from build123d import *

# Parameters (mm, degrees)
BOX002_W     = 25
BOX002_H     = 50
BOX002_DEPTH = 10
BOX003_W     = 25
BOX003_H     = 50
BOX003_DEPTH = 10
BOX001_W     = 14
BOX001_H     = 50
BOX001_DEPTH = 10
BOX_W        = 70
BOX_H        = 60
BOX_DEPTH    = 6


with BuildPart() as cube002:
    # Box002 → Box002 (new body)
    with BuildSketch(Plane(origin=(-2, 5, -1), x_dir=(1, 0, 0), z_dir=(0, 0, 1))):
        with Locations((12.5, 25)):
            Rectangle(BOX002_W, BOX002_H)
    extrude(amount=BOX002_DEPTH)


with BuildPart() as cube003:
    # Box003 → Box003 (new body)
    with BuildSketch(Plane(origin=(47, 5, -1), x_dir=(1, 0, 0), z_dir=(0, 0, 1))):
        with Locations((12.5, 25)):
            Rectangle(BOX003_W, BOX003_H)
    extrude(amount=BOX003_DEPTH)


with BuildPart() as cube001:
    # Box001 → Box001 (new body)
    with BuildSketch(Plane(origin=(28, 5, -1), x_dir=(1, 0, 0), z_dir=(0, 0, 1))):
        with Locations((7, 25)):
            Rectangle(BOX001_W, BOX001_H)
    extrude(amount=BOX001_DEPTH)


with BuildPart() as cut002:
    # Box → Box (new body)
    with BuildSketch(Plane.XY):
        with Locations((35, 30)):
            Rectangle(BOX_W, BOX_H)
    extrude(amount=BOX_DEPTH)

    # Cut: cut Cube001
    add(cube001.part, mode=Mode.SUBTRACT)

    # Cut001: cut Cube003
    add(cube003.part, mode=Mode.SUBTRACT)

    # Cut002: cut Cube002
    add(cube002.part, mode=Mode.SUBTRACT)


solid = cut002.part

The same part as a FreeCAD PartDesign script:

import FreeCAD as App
import Part
import Sketcher
from FreeCAD import Vector

doc = App.newDocument("Part")
body = doc.addObject("PartDesign::Body", "Body")

sketch1 = body.newObject("Sketcher::SketchObject", "Sketch")
sketch1.AttachmentSupport = (doc.getObject("XY_Plane"), [""])
sketch1.MapMode = "FlatFace"
sketch1.AttachmentOffset = App.Placement(Vector(0, 0, -1), App.Rotation())
sketch1.addGeometry(Part.LineSegment(Vector(-2, 55, 0), Vector(-2, 5, 0)), False)
sketch1.addGeometry(Part.LineSegment(Vector(-2, 5, 0), Vector(23, 5, 0)), False)
sketch1.addGeometry(Part.LineSegment(Vector(23, 5, 0), Vector(23, 55, 0)), False)
sketch1.addGeometry(Part.LineSegment(Vector(23, 55, 0), Vector(-2, 55, 0)), False)
sketch1.addConstraint(Sketcher.Constraint("Coincident", 0, 2, 1, 1))
sketch1.addConstraint(Sketcher.Constraint("Coincident", 1, 2, 2, 1))
sketch1.addConstraint(Sketcher.Constraint("Coincident", 2, 2, 3, 1))
sketch1.addConstraint(Sketcher.Constraint("Coincident", 3, 2, 0, 1))
sketch1.addConstraint(Sketcher.Constraint("Vertical", 0))
sketch1.addConstraint(Sketcher.Constraint("Horizontal", 1))
sketch1.addConstraint(Sketcher.Constraint("Vertical", 2))
sketch1.addConstraint(Sketcher.Constraint("Horizontal", 3))
sketch1.addConstraint(Sketcher.Constraint("DistanceX", 1, 1, 1, 2, 25.0))
sketch1.addConstraint(Sketcher.Constraint("DistanceY", 0, 2, 0, 1, 50.0))
sketch1.addConstraint(Sketcher.Constraint("DistanceX", 0, 2, -1, 1, 2.0))
sketch1.addConstraint(Sketcher.Constraint("DistanceY", -1, 1, 0, 2, 5.0))
pad1 = body.newObject("PartDesign::Pad", "Pad")
pad1.Profile = sketch1
pad1.Length = 10
body2 = doc.addObject("PartDesign::Body", "Body001")

sketch2 = body2.newObject("Sketcher::SketchObject", "Sketch001")
sketch2.AttachmentSupport = (doc.getObject("XY_Plane001"), [""])
sketch2.MapMode = "FlatFace"
sketch2.AttachmentOffset = App.Placement(Vector(0, 0, -1), App.Rotation())
sketch2.addGeometry(Part.LineSegment(Vector(47, 55, 0), Vector(47, 5, 0)), False)
sketch2.addGeometry(Part.LineSegment(Vector(47, 5, 0), Vector(72, 5, 0)), False)
sketch2.addGeometry(Part.LineSegment(Vector(72, 5, 0), Vector(72, 55, 0)), False)
sketch2.addGeometry(Part.LineSegment(Vector(72, 55, 0), Vector(47, 55, 0)), False)
sketch2.addConstraint(Sketcher.Constraint("Coincident", 0, 2, 1, 1))
sketch2.addConstraint(Sketcher.Constraint("Coincident", 1, 2, 2, 1))
sketch2.addConstraint(Sketcher.Constraint("Coincident", 2, 2, 3, 1))
sketch2.addConstraint(Sketcher.Constraint("Coincident", 3, 2, 0, 1))
sketch2.addConstraint(Sketcher.Constraint("Vertical", 0))
sketch2.addConstraint(Sketcher.Constraint("Horizontal", 1))
sketch2.addConstraint(Sketcher.Constraint("Vertical", 2))
sketch2.addConstraint(Sketcher.Constraint("Horizontal", 3))
sketch2.addConstraint(Sketcher.Constraint("DistanceX", 1, 1, 1, 2, 25.0))
sketch2.addConstraint(Sketcher.Constraint("DistanceY", 0, 2, 0, 1, 50.0))
sketch2.addConstraint(Sketcher.Constraint("DistanceX", -1, 1, 0, 2, 47.0))
sketch2.addConstraint(Sketcher.Constraint("DistanceY", -1, 1, 0, 2, 5.0))
pad2 = body2.newObject("PartDesign::Pad", "Pad001")
pad2.Profile = sketch2
pad2.Length = 10
body3 = doc.addObject("PartDesign::Body", "Body002")

sketch3 = body3.newObject("Sketcher::SketchObject", "Sketch002")
sketch3.AttachmentSupport = (doc.getObject("XY_Plane002"), [""])
sketch3.MapMode = "FlatFace"
sketch3.AttachmentOffset = App.Placement(Vector(0, 0, -1), App.Rotation())
sketch3.addGeometry(Part.LineSegment(Vector(28, 55, 0), Vector(28, 5, 0)), False)
sketch3.addGeometry(Part.LineSegment(Vector(28, 5, 0), Vector(42, 5, 0)), False)
sketch3.addGeometry(Part.LineSegment(Vector(42, 5, 0), Vector(42, 55, 0)), False)
sketch3.addGeometry(Part.LineSegment(Vector(42, 55, 0), Vector(28, 55, 0)), False)
sketch3.addConstraint(Sketcher.Constraint("Coincident", 0, 2, 1, 1))
sketch3.addConstraint(Sketcher.Constraint("Coincident", 1, 2, 2, 1))
sketch3.addConstraint(Sketcher.Constraint("Coincident", 2, 2, 3, 1))
sketch3.addConstraint(Sketcher.Constraint("Coincident", 3, 2, 0, 1))
sketch3.addConstraint(Sketcher.Constraint("Vertical", 0))
sketch3.addConstraint(Sketcher.Constraint("Horizontal", 1))
sketch3.addConstraint(Sketcher.Constraint("Vertical", 2))
sketch3.addConstraint(Sketcher.Constraint("Horizontal", 3))
sketch3.addConstraint(Sketcher.Constraint("DistanceX", 1, 1, 1, 2, 14.0))
sketch3.addConstraint(Sketcher.Constraint("DistanceY", 0, 2, 0, 1, 50.0))
sketch3.addConstraint(Sketcher.Constraint("DistanceX", -1, 1, 0, 2, 28.0))
sketch3.addConstraint(Sketcher.Constraint("DistanceY", -1, 1, 0, 2, 5.0))
pad3 = body3.newObject("PartDesign::Pad", "Pad002")
pad3.Profile = sketch3
pad3.Length = 10
body4 = doc.addObject("PartDesign::Body", "Body003")

sketch4 = body4.newObject("Sketcher::SketchObject", "Sketch003")
sketch4.AttachmentSupport = (doc.getObject("XY_Plane003"), [""])
sketch4.MapMode = "FlatFace"
sketch4.addGeometry(Part.LineSegment(Vector(0, 60, 0), Vector(0, 0, 0)), False)
sketch4.addGeometry(Part.LineSegment(Vector(0, 0, 0), Vector(70, 0, 0)), False)
sketch4.addGeometry(Part.LineSegment(Vector(70, 0, 0), Vector(70, 60, 0)), False)
sketch4.addGeometry(Part.LineSegment(Vector(70, 60, 0), Vector(0, 60, 0)), False)
sketch4.addConstraint(Sketcher.Constraint("Coincident", 0, 2, 1, 1))
sketch4.addConstraint(Sketcher.Constraint("Coincident", 1, 2, 2, 1))
sketch4.addConstraint(Sketcher.Constraint("Coincident", 2, 2, 3, 1))
sketch4.addConstraint(Sketcher.Constraint("Coincident", 3, 2, 0, 1))
sketch4.addConstraint(Sketcher.Constraint("Vertical", 0))
sketch4.addConstraint(Sketcher.Constraint("Horizontal", 1))
sketch4.addConstraint(Sketcher.Constraint("Vertical", 2))
sketch4.addConstraint(Sketcher.Constraint("Horizontal", 3))
sketch4.addConstraint(Sketcher.Constraint("Coincident", 0, 2, -1, 1))
sketch4.addConstraint(Sketcher.Constraint("DistanceX", 1, 1, 1, 2, 70.0))
sketch4.addConstraint(Sketcher.Constraint("DistanceY", 0, 2, 0, 1, 60.0))
pad4 = body4.newObject("PartDesign::Pad", "Pad003")
pad4.Profile = sketch4
pad4.Length = 6
doc.recompute()

boolean = body4.newObject("PartDesign::Boolean", "Boolean")
boolean.Type = "Cut"
boolean.addObjects([body3])
doc.recompute()

boolean2 = body4.newObject("PartDesign::Boolean", "Boolean001")
boolean2.Type = "Cut"
boolean2.addObjects([body2])
doc.recompute()

boolean3 = body4.newObject("PartDesign::Boolean", "Boolean002")
boolean3.Type = "Cut"
boolean3.addObjects([body])

doc.recompute()
